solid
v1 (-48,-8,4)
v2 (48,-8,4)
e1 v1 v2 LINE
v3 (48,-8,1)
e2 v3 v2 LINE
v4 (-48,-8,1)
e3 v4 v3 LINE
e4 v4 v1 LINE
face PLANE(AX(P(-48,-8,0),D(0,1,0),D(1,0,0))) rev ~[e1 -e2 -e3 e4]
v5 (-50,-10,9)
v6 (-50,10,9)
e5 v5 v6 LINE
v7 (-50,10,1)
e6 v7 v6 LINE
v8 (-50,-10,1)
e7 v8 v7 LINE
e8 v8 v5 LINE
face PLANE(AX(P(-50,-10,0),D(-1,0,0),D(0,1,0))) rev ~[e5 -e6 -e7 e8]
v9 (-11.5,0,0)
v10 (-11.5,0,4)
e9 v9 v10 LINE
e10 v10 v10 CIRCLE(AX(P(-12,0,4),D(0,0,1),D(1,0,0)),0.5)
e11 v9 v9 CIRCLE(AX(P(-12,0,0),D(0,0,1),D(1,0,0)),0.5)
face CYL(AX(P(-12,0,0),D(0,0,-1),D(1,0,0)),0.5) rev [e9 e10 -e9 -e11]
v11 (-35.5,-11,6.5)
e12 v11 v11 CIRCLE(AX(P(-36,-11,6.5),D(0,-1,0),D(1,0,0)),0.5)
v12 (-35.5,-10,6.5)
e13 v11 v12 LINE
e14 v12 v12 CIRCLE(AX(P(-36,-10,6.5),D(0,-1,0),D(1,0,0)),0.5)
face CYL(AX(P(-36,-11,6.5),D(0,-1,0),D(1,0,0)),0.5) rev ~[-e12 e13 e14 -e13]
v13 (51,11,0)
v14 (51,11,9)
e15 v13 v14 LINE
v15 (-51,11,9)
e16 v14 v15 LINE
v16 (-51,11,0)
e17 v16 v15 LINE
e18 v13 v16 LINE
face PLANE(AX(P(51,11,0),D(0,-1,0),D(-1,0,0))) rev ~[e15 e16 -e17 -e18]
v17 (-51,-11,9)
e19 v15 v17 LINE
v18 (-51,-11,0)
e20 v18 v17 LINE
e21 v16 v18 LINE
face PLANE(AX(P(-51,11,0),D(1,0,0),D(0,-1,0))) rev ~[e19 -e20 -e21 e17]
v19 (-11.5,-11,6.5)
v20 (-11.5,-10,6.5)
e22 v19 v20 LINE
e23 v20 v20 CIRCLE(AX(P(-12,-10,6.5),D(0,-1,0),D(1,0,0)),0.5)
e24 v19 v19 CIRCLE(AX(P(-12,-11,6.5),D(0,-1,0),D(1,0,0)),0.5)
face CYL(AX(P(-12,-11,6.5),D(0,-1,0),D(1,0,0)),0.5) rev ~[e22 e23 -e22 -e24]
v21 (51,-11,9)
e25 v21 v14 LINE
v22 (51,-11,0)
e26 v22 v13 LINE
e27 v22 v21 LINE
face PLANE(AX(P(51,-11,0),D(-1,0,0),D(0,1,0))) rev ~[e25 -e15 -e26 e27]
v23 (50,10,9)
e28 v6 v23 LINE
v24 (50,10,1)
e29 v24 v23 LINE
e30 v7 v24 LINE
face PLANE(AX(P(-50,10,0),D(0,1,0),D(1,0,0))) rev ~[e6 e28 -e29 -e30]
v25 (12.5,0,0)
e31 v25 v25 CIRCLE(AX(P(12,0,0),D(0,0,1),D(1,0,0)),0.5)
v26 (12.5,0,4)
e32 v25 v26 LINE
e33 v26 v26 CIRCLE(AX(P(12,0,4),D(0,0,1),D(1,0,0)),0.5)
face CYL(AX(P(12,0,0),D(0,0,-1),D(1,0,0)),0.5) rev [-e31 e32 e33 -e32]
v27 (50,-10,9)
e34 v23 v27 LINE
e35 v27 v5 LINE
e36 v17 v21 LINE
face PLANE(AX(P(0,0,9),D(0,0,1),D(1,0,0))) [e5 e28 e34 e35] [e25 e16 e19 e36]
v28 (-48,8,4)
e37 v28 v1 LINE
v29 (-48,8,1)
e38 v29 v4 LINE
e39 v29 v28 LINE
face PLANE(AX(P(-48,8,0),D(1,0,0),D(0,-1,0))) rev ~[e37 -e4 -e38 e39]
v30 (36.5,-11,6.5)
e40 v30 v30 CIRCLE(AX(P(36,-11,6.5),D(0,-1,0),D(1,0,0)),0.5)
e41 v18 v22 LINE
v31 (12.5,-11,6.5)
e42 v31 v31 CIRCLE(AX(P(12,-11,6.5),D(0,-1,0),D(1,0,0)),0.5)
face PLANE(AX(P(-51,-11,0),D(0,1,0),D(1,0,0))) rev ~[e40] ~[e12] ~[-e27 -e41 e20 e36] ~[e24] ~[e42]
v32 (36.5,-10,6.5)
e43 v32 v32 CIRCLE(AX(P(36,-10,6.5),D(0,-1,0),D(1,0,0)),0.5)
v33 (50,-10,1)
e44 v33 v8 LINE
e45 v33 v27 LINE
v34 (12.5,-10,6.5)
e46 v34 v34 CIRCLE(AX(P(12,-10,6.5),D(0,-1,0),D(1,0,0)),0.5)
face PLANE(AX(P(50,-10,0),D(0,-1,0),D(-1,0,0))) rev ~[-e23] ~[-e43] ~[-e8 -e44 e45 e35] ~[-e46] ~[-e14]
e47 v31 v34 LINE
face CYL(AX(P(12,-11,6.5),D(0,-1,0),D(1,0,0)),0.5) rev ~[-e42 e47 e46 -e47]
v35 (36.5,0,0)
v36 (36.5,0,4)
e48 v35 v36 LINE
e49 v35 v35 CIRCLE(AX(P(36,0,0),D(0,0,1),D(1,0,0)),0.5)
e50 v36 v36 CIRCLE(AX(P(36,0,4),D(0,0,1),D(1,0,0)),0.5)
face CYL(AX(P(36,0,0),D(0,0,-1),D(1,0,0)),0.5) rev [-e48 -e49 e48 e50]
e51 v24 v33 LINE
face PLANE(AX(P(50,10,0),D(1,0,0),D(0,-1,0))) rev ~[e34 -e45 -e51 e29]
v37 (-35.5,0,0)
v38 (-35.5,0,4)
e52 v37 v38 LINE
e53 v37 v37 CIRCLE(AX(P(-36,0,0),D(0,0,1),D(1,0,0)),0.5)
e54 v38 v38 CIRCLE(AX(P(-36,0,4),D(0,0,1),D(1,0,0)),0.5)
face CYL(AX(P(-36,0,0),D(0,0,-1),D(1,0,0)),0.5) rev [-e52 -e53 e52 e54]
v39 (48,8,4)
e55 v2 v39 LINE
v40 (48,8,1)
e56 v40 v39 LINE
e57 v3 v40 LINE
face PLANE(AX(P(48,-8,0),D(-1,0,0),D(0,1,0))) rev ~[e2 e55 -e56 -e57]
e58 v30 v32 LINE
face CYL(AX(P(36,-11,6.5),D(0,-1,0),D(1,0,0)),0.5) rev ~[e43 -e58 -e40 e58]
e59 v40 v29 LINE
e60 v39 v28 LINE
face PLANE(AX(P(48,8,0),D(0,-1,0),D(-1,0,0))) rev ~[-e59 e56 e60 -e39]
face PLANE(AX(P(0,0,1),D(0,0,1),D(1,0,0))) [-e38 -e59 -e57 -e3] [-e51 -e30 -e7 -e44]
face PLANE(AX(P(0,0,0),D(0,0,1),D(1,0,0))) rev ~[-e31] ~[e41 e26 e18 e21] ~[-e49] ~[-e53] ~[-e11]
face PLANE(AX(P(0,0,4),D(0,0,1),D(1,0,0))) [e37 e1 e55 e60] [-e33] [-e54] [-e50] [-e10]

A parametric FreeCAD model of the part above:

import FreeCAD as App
import Part
import Sketcher
from FreeCAD import Vector
Q = App.Units.Quantity


def add_polygon(sketch, points):
    """Adds a closed chain of lines whose ends are joined by coincident constraints."""
    first, n = sketch.GeometryCount, len(points)
    for a, b in zip(points, points[1:] + points[:1]):
        sketch.addGeometry(Part.LineSegment(App.Vector(*a, 0), App.Vector(*b, 0)), False)
    for i in range(n):
        sketch.addConstraint(Sketcher.Constraint("Coincident", first + i, 2, first + (i + 1) % n, 1))

doc = App.newDocument("Part")
body = doc.addObject("PartDesign::Body", "Body")

sketch1 = body.newObject("Sketcher::SketchObject", "Sketch")
sketch1.AttachmentSupport = (doc.getObject("XY_Plane"), [""])
sketch1.MapMode = "FlatFace"
add_polygon(sketch1, [(51, -11), (51, 11), (-51, 11), (-51, -11)])
add_polygon(sketch1, [(-50, -10), (-50, 10), (50, 10), (50, -10)])
sketch1.addConstraint([
    Sketcher.Constraint("Vertical", 0),
    Sketcher.Constraint("Horizontal", 1),
    Sketcher.Constraint("Vertical", 2),
    Sketcher.Constraint("Horizontal", 3),
    Sketcher.Constraint("Vertical", 4),
    Sketcher.Constraint("Horizontal", 5),
    Sketcher.Constraint("Vertical", 6),
    Sketcher.Constraint("Horizontal", 7),
    Sketcher.Constraint("Symmetric", 0, 2, 2, 2, -1, 1),
    Sketcher.Constraint("Symmetric", 4, 2, 6, 2, -1, 1),
    Sketcher.Constraint("DistanceX", 5, 1, 5, 2, Q("100 mm")),
    Sketcher.Constraint("DistanceY", 4, 1, 4, 2, Q("20 mm")),
    Sketcher.Constraint("DistanceX", 1, 2, 4, 2, Q("1 mm")),
    Sketcher.Constraint("DistanceY", 4, 2, 1, 2, Q("1 mm")),
])
pad1 = body.newObject("PartDesign::Pad", "Pad")
pad1.Profile = sketch1
pad1.Length = 9

sketch2 = body.newObject("Sketcher::SketchObject", "Sketch001")
sketch2.AttachmentSupport = (doc.getObject("XY_Plane"), [""])
sketch2.MapMode = "FlatFace"
add_polygon(sketch2, [(50, 10), (-50, 10), (-50, -10), (50, -10)])
add_polygon(sketch2, [(48, -8), (-48, -8), (-48, 8), (48, 8)])
sketch2.addConstraint([
    Sketcher.Constraint("Horizontal", 0),
    Sketcher.Constraint("Vertical", 1),
    Sketcher.Constraint("Horizontal", 2),
    Sketcher.Constraint("Vertical", 3),
    Sketcher.Constraint("Horizontal", 4),
    Sketcher.Constraint("Vertical", 5),
    Sketcher.Constraint("Horizontal", 6),
    Sketcher.Constraint("Vertical", 7),
    Sketcher.Constraint("Symmetric", 0, 2, 2, 2, -1, 1),
    Sketcher.Constraint("Symmetric", 4, 2, 6, 2, -1, 1),
    Sketcher.Constraint("DistanceX", 0, 2, 0, 1, Q("100 mm")),
    Sketcher.Constraint("DistanceX", 4, 2, 4, 1, Q("96 mm")),
    Sketcher.Constraint("DistanceY", 1, 2, 1, 1, Q("20 mm")),
    Sketcher.Constraint("DistanceY", 5, 1, 5, 2, Q("16 mm")),
])
pad2 = body.newObject("PartDesign::Pad", "Pad001")
pad2.Profile = sketch2
pad2.Length = 1

sketch3 = body.newObject("Sketcher::SketchObject", "Sketch002")
sketch3.AttachmentSupport = (doc.getObject("XY_Plane"), [""])
sketch3.MapMode = "FlatFace"
add_polygon(sketch3, [(-48, 8), (-48, -8), (48, -8), (48, 8)])
sketch3.addConstraint([
    Sketcher.Constraint("Vertical", 0),
    Sketcher.Constraint("Horizontal", 1),
    Sketcher.Constraint("Vertical", 2),
    Sketcher.Constraint("Horizontal", 3),
    Sketcher.Constraint("Symmetric", 0, 2, 2, 2, -1, 1),
    Sketcher.Constraint("DistanceX", 1, 1, 1, 2, Q("96 mm")),
    Sketcher.Constraint("DistanceY", 0, 2, 0, 1, Q("16 mm")),
])
pad3 = body.newObject("PartDesign::Pad", "Pad002")
pad3.Profile = sketch3
pad3.Length = 4

sketch4 = body.newObject("Sketcher::SketchObject", "Sketch003")
sketch4.AttachmentSupport = (doc.getObject("XY_Plane"), [""])
sketch4.MapMode = "FlatFace"
sketch4.addGeometry([
    Part.Circle(Vector(-36, 0, 0), Vector(0, 0, 1), 0.5),
    Part.Circle(Vector(-12, 0, 0), Vector(0, 0, 1), 0.5),
    Part.Circle(Vector(12, 0, 0), Vector(0, 0, 1), 0.5),
    Part.Circle(Vector(36, 0, 0), Vector(0, 0, 1), 0.5),
], False)
sketch4.addConstraint([
    Sketcher.Constraint("Equal", 0, 1),
    Sketcher.Constraint("Equal", 1, 2),
    Sketcher.Constraint("Equal", 2, 3),
    Sketcher.Constraint("Symmetric", 1, 3, 2, 3, -1, 1),
    Sketcher.Constraint("Symmetric", 0, 3, 3, 3, -1, 1),
    Sketcher.Constraint("PointOnObject", 0, 3, -1),
    Sketcher.Constraint("PointOnObject", 1, 3, -1),
    Sketcher.Constraint("Diameter", 0, Q("1 mm")),
    Sketcher.Constraint("DistanceX", 1, 3, -1, 1, Q("12 mm")),
    Sketcher.Constraint("DistanceX", 0, 3, 1, 3, Q("24 mm")),
])
pocket1 = body.newObject("PartDesign::Pocket", "Pocket")
pocket1.Profile = sketch4
pocket1.Length = 4
pocket1.Reversed = True

sketch5 = body.newObject("Sketcher::SketchObject", "Sketch004")
sketch5.AttachmentSupport = (doc.getObject("XZ_Plane"), [""])
sketch5.MapMode = "FlatFace"
sketch5.AttachmentOffset = App.Placement(Vector(0, 0, 11), App.Rotation())
sketch5.addGeometry([
    Part.Circle(Vector(-36, 6.5, 0), Vector(0, 0, 1), 0.5),
    Part.Circle(Vector(-12, 6.5, 0), Vector(0, 0, 1), 0.5),
    Part.Circle(Vector(12, 6.5, 0), Vector(0, 0, 1), 0.5),
    Part.Circle(Vector(36, 6.5, 0), Vector(0, 0, 1), 0.5),
], False)
sketch5.addConstraint([
    Sketcher.Constraint("Equal", 0, 1),
    Sketcher.Constraint("Equal", 1, 2),
    Sketcher.Constraint("Equal", 2, 3),
    Sketcher.Constraint("Symmetric", 1, 3, 2, 3, -2),
    Sketcher.Constraint("Symmetric", 0, 3, 3, 3, -2),
    Sketcher.Constraint("Horizontal", 0, 3, 1, 3),
    Sketcher.Constraint("Diameter", 0, Q("1 mm")),
    Sketcher.Constraint("DistanceX", 0, 3, 1, 3, Q("24 mm")),
    Sketcher.Constraint("DistanceX", 1, 3, 2, 3, Q("24 mm")),
    Sketcher.Constraint("DistanceY", -1, 1, 0, 3, Q("6.5 mm")),
])
pocket2 = body.newObject("PartDesign::Pocket", "Pocket001")
pocket2.Profile = sketch5
pocket2.Length = 2

doc.recompute()
